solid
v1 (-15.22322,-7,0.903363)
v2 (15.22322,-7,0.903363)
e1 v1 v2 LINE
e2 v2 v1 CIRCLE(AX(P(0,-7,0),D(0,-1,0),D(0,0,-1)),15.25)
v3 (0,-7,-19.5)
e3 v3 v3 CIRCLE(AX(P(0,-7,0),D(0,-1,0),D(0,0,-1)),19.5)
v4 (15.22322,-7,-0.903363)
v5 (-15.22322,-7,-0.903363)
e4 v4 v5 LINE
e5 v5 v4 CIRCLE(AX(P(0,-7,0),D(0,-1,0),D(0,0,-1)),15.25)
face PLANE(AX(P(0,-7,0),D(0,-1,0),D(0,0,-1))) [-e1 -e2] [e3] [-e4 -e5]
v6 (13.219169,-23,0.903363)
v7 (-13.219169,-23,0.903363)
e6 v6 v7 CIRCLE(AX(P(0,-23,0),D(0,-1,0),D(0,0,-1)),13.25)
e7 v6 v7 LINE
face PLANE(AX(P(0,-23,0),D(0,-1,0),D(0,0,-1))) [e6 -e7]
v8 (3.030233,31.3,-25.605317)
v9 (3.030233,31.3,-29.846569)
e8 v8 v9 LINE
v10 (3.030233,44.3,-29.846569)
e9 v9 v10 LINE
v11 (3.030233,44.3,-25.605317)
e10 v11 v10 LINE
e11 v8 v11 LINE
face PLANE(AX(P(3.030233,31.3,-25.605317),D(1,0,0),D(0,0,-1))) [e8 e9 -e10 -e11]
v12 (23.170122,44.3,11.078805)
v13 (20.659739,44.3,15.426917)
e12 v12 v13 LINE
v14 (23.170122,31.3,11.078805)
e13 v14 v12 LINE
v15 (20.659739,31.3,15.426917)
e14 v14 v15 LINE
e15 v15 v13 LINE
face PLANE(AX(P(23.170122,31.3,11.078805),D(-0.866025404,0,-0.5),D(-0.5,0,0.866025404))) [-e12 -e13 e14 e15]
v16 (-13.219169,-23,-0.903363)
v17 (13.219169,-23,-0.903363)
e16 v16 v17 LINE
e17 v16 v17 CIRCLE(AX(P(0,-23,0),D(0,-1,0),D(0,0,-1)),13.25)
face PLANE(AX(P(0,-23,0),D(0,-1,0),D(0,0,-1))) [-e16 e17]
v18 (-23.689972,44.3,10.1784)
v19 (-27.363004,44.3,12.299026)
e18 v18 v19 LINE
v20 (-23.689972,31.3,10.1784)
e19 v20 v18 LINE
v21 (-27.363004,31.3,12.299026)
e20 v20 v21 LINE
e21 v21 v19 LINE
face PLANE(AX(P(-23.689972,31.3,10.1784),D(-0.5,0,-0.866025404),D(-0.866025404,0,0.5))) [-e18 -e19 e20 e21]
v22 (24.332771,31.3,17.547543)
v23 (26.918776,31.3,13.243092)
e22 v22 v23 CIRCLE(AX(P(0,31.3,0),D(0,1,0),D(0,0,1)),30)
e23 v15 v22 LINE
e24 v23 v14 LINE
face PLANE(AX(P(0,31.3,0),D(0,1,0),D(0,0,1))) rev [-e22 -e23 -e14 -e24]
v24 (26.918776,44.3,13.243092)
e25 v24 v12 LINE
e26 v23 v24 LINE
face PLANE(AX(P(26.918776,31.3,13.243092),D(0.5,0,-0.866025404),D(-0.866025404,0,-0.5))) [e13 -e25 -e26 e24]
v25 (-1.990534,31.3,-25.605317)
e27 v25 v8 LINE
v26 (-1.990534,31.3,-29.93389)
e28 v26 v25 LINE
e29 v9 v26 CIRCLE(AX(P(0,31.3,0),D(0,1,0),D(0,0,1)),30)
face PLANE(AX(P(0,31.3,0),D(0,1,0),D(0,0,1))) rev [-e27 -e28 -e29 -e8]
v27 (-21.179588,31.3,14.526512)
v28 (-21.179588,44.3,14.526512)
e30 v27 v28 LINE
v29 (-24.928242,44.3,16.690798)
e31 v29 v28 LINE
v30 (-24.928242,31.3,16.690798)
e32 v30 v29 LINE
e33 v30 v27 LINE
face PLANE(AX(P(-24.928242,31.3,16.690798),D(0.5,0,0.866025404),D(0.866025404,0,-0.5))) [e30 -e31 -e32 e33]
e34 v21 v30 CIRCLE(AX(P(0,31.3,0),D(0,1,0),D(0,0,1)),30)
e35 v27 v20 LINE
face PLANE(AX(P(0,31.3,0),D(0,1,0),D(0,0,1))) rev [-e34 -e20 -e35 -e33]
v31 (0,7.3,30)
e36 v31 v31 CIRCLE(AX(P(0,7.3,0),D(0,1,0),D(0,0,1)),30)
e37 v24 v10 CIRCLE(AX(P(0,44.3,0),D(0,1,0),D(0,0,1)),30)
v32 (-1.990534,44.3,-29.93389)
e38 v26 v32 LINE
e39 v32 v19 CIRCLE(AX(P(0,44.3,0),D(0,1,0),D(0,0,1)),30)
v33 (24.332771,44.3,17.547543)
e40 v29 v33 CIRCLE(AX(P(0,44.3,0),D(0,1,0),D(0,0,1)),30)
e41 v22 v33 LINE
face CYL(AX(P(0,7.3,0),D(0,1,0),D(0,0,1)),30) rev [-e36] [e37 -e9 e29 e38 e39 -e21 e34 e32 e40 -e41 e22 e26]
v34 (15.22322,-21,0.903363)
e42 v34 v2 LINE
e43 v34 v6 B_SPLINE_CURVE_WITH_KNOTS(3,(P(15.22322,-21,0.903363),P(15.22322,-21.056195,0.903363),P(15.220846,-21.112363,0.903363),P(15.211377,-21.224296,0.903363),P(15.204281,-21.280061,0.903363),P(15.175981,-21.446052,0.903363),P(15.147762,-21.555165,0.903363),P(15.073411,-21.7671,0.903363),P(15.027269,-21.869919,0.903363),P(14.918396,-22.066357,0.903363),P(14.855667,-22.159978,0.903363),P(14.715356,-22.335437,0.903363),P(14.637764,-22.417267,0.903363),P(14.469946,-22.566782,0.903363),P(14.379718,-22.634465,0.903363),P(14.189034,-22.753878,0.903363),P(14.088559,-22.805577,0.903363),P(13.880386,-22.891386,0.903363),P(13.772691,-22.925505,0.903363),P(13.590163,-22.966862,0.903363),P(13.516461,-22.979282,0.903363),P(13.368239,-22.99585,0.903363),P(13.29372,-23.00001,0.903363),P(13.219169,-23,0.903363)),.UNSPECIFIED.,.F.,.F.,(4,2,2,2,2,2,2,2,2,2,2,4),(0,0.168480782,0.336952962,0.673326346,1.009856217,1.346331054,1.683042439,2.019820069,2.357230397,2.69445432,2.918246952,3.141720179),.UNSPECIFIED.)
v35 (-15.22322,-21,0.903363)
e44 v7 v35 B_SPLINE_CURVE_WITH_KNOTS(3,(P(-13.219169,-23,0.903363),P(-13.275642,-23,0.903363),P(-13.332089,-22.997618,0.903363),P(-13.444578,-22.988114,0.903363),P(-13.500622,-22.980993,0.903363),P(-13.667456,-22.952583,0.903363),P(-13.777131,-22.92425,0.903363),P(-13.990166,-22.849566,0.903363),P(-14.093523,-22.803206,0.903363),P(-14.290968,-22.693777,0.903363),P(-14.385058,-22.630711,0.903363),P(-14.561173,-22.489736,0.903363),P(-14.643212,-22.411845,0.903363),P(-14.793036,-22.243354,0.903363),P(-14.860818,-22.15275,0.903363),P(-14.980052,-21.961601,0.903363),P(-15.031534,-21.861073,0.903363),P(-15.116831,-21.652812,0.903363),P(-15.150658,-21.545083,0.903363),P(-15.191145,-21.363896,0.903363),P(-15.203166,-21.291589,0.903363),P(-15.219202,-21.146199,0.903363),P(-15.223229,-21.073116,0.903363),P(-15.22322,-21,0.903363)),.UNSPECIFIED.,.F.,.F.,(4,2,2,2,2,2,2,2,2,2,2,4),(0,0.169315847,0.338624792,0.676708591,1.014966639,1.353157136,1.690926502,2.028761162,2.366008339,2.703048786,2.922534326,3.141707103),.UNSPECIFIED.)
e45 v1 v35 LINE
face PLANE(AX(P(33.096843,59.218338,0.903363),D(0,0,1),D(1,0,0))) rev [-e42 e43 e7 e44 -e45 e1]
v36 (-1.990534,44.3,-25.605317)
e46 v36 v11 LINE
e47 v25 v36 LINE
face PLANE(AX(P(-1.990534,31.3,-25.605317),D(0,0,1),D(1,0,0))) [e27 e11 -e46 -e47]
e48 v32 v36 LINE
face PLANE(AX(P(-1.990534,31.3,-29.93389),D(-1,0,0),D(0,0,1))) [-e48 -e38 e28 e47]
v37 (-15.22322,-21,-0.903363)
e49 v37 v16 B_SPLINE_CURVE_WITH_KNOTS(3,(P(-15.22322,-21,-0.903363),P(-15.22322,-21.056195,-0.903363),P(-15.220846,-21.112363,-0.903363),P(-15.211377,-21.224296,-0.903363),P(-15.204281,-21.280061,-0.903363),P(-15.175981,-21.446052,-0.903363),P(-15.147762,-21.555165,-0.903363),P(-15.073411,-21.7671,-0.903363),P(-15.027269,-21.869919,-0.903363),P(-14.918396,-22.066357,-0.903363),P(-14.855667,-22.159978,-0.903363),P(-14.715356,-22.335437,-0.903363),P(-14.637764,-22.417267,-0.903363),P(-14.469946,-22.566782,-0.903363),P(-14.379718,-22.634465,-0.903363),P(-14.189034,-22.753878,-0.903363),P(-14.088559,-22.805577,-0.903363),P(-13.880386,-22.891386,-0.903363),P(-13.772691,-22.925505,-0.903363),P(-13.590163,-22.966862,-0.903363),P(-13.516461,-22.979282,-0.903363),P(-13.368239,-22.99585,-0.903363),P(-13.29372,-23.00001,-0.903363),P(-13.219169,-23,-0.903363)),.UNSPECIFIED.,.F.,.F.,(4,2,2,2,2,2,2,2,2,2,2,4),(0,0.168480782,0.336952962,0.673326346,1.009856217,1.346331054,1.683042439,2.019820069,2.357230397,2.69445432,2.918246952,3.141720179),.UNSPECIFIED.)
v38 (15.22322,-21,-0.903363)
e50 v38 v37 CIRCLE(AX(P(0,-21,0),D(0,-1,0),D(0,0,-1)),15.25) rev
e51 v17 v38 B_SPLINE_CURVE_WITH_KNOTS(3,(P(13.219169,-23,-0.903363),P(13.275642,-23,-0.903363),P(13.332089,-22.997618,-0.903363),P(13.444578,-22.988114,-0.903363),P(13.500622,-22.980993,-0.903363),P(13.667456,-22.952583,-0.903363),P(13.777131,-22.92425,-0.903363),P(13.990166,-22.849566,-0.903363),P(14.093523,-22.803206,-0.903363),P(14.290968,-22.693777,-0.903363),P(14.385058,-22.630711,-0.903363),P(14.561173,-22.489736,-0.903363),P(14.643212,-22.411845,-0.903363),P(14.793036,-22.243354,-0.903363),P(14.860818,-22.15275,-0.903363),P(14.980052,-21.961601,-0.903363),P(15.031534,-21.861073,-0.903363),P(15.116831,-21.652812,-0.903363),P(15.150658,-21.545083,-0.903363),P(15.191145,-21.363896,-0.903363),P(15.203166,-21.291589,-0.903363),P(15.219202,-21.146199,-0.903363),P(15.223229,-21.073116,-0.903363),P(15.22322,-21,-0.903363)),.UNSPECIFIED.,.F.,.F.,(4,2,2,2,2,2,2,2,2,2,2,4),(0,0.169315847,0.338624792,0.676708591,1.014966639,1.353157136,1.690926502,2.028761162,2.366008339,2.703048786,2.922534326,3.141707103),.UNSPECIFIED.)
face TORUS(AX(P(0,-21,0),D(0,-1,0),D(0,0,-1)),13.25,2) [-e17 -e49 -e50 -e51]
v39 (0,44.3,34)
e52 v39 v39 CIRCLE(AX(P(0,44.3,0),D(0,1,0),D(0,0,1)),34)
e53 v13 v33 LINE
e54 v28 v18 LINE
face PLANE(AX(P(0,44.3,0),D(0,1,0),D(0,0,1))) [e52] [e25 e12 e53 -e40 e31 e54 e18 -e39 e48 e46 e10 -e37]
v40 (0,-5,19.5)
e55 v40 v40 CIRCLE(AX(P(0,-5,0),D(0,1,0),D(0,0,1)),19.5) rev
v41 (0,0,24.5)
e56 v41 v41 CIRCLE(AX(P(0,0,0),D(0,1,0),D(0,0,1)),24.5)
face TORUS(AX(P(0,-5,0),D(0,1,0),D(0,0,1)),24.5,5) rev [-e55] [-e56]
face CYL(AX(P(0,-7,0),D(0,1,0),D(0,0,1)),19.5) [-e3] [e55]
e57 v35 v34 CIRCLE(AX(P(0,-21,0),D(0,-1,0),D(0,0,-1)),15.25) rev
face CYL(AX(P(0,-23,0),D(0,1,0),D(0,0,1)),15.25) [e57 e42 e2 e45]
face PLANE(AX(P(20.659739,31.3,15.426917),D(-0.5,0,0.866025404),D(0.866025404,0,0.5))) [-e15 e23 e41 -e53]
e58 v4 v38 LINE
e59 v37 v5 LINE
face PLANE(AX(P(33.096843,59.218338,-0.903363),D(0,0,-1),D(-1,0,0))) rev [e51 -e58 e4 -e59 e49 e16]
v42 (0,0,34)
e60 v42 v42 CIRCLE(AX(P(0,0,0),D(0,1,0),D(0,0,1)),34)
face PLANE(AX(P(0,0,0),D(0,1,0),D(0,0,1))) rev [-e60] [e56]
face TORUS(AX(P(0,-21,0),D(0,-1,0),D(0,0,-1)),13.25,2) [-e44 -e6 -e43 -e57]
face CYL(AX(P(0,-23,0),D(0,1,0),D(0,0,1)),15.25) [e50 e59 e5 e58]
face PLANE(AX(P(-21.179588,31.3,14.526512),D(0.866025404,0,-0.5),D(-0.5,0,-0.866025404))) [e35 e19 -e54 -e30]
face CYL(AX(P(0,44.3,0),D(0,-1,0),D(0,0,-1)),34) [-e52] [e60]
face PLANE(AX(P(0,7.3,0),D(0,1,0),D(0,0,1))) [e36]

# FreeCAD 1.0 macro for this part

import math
import FreeCAD as App
import Part
import Sketcher
Q = App.Units.Quantity


def edges_at(feature, points):
    """Names of the edges that pass closest to the given points."""
    edges = feature.Shape.Edges
    near = lambda p: min(range(len(edges)), key=lambda i: edges[i].distToShape(Part.Vertex(*p))[0])
    return sorted({f"Edge{near(p) + 1}" for p in points})


def add_polygon(sketch, points):
    """Adds a closed chain of lines whose ends are joined by coincident constraints."""
    first, n = sketch.GeometryCount, len(points)
    for a, b in zip(points, points[1:] + points[:1]):
        sketch.addGeometry(Part.LineSegment(App.Vector(*a, 0), App.Vector(*b, 0)), False)
    for i in range(n):
        sketch.addConstraint(Sketcher.Constraint("Coincident", first + i, 2, first + (i + 1) % n, 1))

doc = App.newDocument("Part")
body = doc.addObject("PartDesign::Body", "Body")

sketch1 = body.newObject("Sketcher::SketchObject", "Sketch")
sketch1.AttachmentSupport = (doc.getObject("XZ_Plane"), [""])
sketch1.MapMode = "FlatFace"
sketch1.addGeometry(Part.Circle(App.Vector(0, 0, 0), App.Vector(0, 0, 1), 34), False)
sketch1.addConstraint(Sketcher.Constraint("Coincident", 0, 3, -1, 1))
sketch1.addConstraint(Sketcher.Constraint("Diameter", 0, Q("68 mm")))
pad1 = body.newObject("PartDesign::Pad", "Pad")
pad1.Profile = sketch1
pad1.Length = 44.3
pad1.Reversed = True

sketch2 = body.newObject("Sketcher::SketchObject", "Sketch001")
sketch2.AttachmentSupport = (doc.getObject("XZ_Plane"), [""])
sketch2.MapMode = "FlatFace"
sketch2.AttachmentOffset = App.Placement(App.Vector(0, 0, -44.3), App.Rotation())
sketch2.addGeometry(Part.Circle(App.Vector(0, 0, 0), App.Vector(0, 0, 1), 30), False)
sketch2.addConstraint(Sketcher.Constraint("Coincident", 0, 3, -1, 1))
sketch2.addConstraint(Sketcher.Constraint("Diameter", 0, Q("60 mm")))
pocket1 = body.newObject("PartDesign::Pocket", "Pocket")
pocket1.Profile = sketch2
pocket1.Length = 37
pocket1.Reversed = True

sketch3 = body.newObject("Sketcher::SketchObject", "Sketch002")
sketch3.AttachmentSupport = (doc.getObject("XZ_Plane"), [""])
sketch3.MapMode = "FlatFace"
sketch3.addGeometry(Part.Circle(App.Vector(0, 0, 0), App.Vector(0, 0, 1), 20), False)
sketch3.addConstraint(Sketcher.Constraint("Coincident", 0, 3, -1, 1))
sketch3.addConstraint(Sketcher.Constraint("Diameter", 0, Q("39 mm")))
pad2 = body.newObject("PartDesign::Pad", "Pad001")
pad2.Profile = sketch3
pad2.Length = 7

sketch4 = body.newObject("Sketcher::SketchObject", "Sketch003")
sketch4.AttachmentSupport = (doc.getObject("XZ_Plane"), [""])
sketch4.MapMode = "FlatFace"
sketch4.AttachmentOffset = App.Placement(App.Vector(0, 0, 7), App.Rotation())
sketch4.addGeometry(Part.Circle(App.Vector(0, 0, 0), App.Vector(0, 0, 1), 15), False)
sketch4.addConstraint(Sketcher.Constraint("Coincident", 0, 3, -1, 1))
sketch4.addConstraint(Sketcher.Constraint("Diameter", 0, Q("30.5 mm")))
pad3 = body.newObject("PartDesign::Pad", "Pad002")
pad3.Profile = sketch4
pad3.Length = 16
doc.recompute()

fillet = body.newObject("PartDesign::Fillet", "Fillet")
fillet.Base = (pad3, edges_at(pad3, [(0, 0, 19.5)]))
fillet.Radius = 5

sketch5 = body.newObject("Sketcher::SketchObject", "Sketch004")
sketch5.AttachmentSupport = (doc.getObject("XZ_Plane"), [""])
sketch5.MapMode = "FlatFace"
sketch5.AttachmentOffset = App.Placement(App.Vector(0, 0, -44.3), App.Rotation())
sketch5.addGeometry(Part.LineSegment(App.Vector(-2, -29.9, 0), App.Vector(-2, -25.6, 0)), False)
sketch5.addGeometry(Part.LineSegment(App.Vector(-2, -25.6, 0), App.Vector(3, -25.6, 0)), False)
sketch5.addGeometry(Part.LineSegment(App.Vector(3, -25.6, 0), App.Vector(3, -29.8, 0)), False)
sketch5.addGeometry(Part.ArcOfCircle(Part.Circle(App.Vector(0, 0, 0), App.Vector(0, 0, 1), 30), math.radians(-93.8), math.radians(-84.2)), False)
sketch5.addGeometry(Part.LineSegment(App.Vector(26.9, 13.2, 0), App.Vector(23.2, 11.1, 0)), False)
sketch5.addGeometry(Part.LineSegment(App.Vector(23.2, 11.1, 0), App.Vector(20.7, 15.4, 0)), False)
sketch5.addGeometry(Part.LineSegment(App.Vector(20.7, 15.4, 0), App.Vector(24.3, 17.5, 0)), False)
sketch5.addGeometry(Part.ArcOfCircle(Part.Circle(App.Vector(0, 0, 0), App.Vector(0, 0, 1), 30), math.radians(26.2), math.radians(35.8)), False)
sketch5.addGeometry(Part.LineSegment(App.Vector(-24.9, 16.7, 0), App.Vector(-21.2, 14.5, 0)), False)
sketch5.addGeometry(Part.LineSegment(App.Vector(-21.2, 14.5, 0), App.Vector(-23.7, 10.2, 0)), False)
sketch5.addGeometry(Part.LineSegment(App.Vector(-23.7, 10.2, 0), App.Vector(-27.4, 12.3, 0)), False)
sketch5.addGeometry(Part.ArcOfCircle(Part.Circle(App.Vector(0, 0, 0), App.Vector(0, 0, 1), 30), math.radians(146.2), math.radians(155.8)), False)
sketch5.addConstraint(Sketcher.Constraint("Coincident", 0, 2, 1, 1))
sketch5.addConstraint(Sketcher.Constraint("Coincident", 1, 2, 2, 1))
sketch5.addConstraint(Sketcher.Constraint("Coincident", 2, 2, 3, 2))
sketch5.addConstraint(Sketcher.Constraint("Coincident", 3, 1, 0, 1))
sketch5.addConstraint(Sketcher.Constraint("Coincident", 4, 2, 5, 1))
sketch5.addConstraint(Sketcher.Constraint("Coincident", 5, 2, 6, 1))
sketch5.addConstraint(Sketcher.Constraint("Coincident", 6, 2, 7, 2))
sketch5.addConstraint(Sketcher.Constraint("Coincident", 7, 1, 4, 1))
sketch5.addConstraint(Sketcher.Constraint("Coincident", 8, 2, 9, 1))
sketch5.addConstraint(Sketcher.Constraint("Coincident", 9, 2, 10, 1))
sketch5.addConstraint(Sketcher.Constraint("Coincident", 10, 2, 11, 2))
sketch5.addConstraint(Sketcher.Constraint("Coincident", 11, 1, 8, 1))
sketch5.addConstraint(Sketcher.Constraint("Vertical", 0))
sketch5.addConstraint(Sketcher.Constraint("Horizontal", 1))
sketch5.addConstraint(Sketcher.Constraint("Vertical", 2))
sketch5.addConstraint(Sketcher.Constraint("Coincident", 3, 3, -1, 1))
sketch5.addConstraint(Sketcher.Constraint("Coincident", 7, 3, -1, 1))
sketch5.addConstraint(Sketcher.Constraint("Coincident", 11, 3, -1, 1))
sketch5.addConstraint(Sketcher.Constraint("Equal", 3, 7))
sketch5.addConstraint(Sketcher.Constraint("Equal", 7, 11))
sketch5.addConstraint(Sketcher.Constraint("Perpendicular", 4, 5))
sketch5.addConstraint(Sketcher.Constraint("Perpendicular", 5, 6))
sketch5.addConstraint(Sketcher.Constraint("Perpendicular", 8, 9))
sketch5.addConstraint(Sketcher.Constraint("Perpendicular", 9, 10))
sketch5.addConstraint(Sketcher.Constraint("Equal", 4, 8))
sketch5.addConstraint(Sketcher.Constraint("Equal", 5, 9))
sketch5.addConstraint(Sketcher.Constraint("Equal", 6, 10))
sketch5.addConstraint(Sketcher.Constraint("Radius", 3, Q("30 mm")))
sketch5.addConstraint(Sketcher.Constraint("Angle", 4, Q("-150 deg")))
sketch5.addConstraint(Sketcher.Constraint("Angle", 8, Q("-30 deg")))
sketch5.addConstraint(Sketcher.Constraint("DistanceY", -1, 1, 9, 2, Q("10.1784 mm")))
sketch5.addConstraint(Sketcher.Constraint("DistanceY", -1, 1, 11, 1, Q("16.690798 mm")))
sketch5.addConstraint(Sketcher.Constraint("DistanceX", 1, 1, 1, 2, Q("5.020767 mm")))
sketch5.addConstraint(Sketcher.Constraint("DistanceY", 0, 1, 0, 2, Q("4.328573 mm")))
sketch5.addConstraint(Sketcher.Constraint("DistanceY", 2, 2, 2, 1, Q("4.241252 mm")))
sketch5.addConstraint(Sketcher.Constraint("DistanceX", -1, 1, 5, 2, Q("20.659739 mm")))
pad4 = body.newObject("PartDesign::Pad", "Pad003")
pad4.Profile = sketch5
pad4.Length = 13

sketch6 = body.newObject("Sketcher::SketchObject", "Sketch005")
sketch6.AttachmentSupport = (doc.getObject("XZ_Plane"), [""])
sketch6.MapMode = "FlatFace"
sketch6.AttachmentOffset = App.Placement(App.Vector(0, 0, 23), App.Rotation())
add_polygon(sketch6, [(-33.1, 0.9), (-33.1, -0.9), (33.1, -0.9), (33.1, 0.9)])
sketch6.addConstraint(Sketcher.Constraint("Vertical", 0))
sketch6.addConstraint(Sketcher.Constraint("Horizontal", 1))
sketch6.addConstraint(Sketcher.Constraint("Vertical", 2))
sketch6.addConstraint(Sketcher.Constraint("Horizontal", 3))
sketch6.addConstraint(Sketcher.Constraint("Symmetric", 0, 2, 2, 2, -1, 1))
sketch6.addConstraint(Sketcher.Constraint("DistanceX", 1, 1, 1, 2, Q("66.193685 mm")))
sketch6.addConstraint(Sketcher.Constraint("DistanceY", 0, 2, 0, 1, Q("1.806727 mm")))
pocket2 = body.newObject("PartDesign::Pocket", "Pocket001")
pocket2.Profile = sketch6
pocket2.Length = 16
doc.recompute()

fillet2 = body.newObject("PartDesign::Fillet", "Fillet001")
fillet2.Base = (pocket2, edges_at(pocket2, [(0, -23, 15.25), (0, -23, -15.25)]))
fillet2.Radius = 2

doc.recompute()
